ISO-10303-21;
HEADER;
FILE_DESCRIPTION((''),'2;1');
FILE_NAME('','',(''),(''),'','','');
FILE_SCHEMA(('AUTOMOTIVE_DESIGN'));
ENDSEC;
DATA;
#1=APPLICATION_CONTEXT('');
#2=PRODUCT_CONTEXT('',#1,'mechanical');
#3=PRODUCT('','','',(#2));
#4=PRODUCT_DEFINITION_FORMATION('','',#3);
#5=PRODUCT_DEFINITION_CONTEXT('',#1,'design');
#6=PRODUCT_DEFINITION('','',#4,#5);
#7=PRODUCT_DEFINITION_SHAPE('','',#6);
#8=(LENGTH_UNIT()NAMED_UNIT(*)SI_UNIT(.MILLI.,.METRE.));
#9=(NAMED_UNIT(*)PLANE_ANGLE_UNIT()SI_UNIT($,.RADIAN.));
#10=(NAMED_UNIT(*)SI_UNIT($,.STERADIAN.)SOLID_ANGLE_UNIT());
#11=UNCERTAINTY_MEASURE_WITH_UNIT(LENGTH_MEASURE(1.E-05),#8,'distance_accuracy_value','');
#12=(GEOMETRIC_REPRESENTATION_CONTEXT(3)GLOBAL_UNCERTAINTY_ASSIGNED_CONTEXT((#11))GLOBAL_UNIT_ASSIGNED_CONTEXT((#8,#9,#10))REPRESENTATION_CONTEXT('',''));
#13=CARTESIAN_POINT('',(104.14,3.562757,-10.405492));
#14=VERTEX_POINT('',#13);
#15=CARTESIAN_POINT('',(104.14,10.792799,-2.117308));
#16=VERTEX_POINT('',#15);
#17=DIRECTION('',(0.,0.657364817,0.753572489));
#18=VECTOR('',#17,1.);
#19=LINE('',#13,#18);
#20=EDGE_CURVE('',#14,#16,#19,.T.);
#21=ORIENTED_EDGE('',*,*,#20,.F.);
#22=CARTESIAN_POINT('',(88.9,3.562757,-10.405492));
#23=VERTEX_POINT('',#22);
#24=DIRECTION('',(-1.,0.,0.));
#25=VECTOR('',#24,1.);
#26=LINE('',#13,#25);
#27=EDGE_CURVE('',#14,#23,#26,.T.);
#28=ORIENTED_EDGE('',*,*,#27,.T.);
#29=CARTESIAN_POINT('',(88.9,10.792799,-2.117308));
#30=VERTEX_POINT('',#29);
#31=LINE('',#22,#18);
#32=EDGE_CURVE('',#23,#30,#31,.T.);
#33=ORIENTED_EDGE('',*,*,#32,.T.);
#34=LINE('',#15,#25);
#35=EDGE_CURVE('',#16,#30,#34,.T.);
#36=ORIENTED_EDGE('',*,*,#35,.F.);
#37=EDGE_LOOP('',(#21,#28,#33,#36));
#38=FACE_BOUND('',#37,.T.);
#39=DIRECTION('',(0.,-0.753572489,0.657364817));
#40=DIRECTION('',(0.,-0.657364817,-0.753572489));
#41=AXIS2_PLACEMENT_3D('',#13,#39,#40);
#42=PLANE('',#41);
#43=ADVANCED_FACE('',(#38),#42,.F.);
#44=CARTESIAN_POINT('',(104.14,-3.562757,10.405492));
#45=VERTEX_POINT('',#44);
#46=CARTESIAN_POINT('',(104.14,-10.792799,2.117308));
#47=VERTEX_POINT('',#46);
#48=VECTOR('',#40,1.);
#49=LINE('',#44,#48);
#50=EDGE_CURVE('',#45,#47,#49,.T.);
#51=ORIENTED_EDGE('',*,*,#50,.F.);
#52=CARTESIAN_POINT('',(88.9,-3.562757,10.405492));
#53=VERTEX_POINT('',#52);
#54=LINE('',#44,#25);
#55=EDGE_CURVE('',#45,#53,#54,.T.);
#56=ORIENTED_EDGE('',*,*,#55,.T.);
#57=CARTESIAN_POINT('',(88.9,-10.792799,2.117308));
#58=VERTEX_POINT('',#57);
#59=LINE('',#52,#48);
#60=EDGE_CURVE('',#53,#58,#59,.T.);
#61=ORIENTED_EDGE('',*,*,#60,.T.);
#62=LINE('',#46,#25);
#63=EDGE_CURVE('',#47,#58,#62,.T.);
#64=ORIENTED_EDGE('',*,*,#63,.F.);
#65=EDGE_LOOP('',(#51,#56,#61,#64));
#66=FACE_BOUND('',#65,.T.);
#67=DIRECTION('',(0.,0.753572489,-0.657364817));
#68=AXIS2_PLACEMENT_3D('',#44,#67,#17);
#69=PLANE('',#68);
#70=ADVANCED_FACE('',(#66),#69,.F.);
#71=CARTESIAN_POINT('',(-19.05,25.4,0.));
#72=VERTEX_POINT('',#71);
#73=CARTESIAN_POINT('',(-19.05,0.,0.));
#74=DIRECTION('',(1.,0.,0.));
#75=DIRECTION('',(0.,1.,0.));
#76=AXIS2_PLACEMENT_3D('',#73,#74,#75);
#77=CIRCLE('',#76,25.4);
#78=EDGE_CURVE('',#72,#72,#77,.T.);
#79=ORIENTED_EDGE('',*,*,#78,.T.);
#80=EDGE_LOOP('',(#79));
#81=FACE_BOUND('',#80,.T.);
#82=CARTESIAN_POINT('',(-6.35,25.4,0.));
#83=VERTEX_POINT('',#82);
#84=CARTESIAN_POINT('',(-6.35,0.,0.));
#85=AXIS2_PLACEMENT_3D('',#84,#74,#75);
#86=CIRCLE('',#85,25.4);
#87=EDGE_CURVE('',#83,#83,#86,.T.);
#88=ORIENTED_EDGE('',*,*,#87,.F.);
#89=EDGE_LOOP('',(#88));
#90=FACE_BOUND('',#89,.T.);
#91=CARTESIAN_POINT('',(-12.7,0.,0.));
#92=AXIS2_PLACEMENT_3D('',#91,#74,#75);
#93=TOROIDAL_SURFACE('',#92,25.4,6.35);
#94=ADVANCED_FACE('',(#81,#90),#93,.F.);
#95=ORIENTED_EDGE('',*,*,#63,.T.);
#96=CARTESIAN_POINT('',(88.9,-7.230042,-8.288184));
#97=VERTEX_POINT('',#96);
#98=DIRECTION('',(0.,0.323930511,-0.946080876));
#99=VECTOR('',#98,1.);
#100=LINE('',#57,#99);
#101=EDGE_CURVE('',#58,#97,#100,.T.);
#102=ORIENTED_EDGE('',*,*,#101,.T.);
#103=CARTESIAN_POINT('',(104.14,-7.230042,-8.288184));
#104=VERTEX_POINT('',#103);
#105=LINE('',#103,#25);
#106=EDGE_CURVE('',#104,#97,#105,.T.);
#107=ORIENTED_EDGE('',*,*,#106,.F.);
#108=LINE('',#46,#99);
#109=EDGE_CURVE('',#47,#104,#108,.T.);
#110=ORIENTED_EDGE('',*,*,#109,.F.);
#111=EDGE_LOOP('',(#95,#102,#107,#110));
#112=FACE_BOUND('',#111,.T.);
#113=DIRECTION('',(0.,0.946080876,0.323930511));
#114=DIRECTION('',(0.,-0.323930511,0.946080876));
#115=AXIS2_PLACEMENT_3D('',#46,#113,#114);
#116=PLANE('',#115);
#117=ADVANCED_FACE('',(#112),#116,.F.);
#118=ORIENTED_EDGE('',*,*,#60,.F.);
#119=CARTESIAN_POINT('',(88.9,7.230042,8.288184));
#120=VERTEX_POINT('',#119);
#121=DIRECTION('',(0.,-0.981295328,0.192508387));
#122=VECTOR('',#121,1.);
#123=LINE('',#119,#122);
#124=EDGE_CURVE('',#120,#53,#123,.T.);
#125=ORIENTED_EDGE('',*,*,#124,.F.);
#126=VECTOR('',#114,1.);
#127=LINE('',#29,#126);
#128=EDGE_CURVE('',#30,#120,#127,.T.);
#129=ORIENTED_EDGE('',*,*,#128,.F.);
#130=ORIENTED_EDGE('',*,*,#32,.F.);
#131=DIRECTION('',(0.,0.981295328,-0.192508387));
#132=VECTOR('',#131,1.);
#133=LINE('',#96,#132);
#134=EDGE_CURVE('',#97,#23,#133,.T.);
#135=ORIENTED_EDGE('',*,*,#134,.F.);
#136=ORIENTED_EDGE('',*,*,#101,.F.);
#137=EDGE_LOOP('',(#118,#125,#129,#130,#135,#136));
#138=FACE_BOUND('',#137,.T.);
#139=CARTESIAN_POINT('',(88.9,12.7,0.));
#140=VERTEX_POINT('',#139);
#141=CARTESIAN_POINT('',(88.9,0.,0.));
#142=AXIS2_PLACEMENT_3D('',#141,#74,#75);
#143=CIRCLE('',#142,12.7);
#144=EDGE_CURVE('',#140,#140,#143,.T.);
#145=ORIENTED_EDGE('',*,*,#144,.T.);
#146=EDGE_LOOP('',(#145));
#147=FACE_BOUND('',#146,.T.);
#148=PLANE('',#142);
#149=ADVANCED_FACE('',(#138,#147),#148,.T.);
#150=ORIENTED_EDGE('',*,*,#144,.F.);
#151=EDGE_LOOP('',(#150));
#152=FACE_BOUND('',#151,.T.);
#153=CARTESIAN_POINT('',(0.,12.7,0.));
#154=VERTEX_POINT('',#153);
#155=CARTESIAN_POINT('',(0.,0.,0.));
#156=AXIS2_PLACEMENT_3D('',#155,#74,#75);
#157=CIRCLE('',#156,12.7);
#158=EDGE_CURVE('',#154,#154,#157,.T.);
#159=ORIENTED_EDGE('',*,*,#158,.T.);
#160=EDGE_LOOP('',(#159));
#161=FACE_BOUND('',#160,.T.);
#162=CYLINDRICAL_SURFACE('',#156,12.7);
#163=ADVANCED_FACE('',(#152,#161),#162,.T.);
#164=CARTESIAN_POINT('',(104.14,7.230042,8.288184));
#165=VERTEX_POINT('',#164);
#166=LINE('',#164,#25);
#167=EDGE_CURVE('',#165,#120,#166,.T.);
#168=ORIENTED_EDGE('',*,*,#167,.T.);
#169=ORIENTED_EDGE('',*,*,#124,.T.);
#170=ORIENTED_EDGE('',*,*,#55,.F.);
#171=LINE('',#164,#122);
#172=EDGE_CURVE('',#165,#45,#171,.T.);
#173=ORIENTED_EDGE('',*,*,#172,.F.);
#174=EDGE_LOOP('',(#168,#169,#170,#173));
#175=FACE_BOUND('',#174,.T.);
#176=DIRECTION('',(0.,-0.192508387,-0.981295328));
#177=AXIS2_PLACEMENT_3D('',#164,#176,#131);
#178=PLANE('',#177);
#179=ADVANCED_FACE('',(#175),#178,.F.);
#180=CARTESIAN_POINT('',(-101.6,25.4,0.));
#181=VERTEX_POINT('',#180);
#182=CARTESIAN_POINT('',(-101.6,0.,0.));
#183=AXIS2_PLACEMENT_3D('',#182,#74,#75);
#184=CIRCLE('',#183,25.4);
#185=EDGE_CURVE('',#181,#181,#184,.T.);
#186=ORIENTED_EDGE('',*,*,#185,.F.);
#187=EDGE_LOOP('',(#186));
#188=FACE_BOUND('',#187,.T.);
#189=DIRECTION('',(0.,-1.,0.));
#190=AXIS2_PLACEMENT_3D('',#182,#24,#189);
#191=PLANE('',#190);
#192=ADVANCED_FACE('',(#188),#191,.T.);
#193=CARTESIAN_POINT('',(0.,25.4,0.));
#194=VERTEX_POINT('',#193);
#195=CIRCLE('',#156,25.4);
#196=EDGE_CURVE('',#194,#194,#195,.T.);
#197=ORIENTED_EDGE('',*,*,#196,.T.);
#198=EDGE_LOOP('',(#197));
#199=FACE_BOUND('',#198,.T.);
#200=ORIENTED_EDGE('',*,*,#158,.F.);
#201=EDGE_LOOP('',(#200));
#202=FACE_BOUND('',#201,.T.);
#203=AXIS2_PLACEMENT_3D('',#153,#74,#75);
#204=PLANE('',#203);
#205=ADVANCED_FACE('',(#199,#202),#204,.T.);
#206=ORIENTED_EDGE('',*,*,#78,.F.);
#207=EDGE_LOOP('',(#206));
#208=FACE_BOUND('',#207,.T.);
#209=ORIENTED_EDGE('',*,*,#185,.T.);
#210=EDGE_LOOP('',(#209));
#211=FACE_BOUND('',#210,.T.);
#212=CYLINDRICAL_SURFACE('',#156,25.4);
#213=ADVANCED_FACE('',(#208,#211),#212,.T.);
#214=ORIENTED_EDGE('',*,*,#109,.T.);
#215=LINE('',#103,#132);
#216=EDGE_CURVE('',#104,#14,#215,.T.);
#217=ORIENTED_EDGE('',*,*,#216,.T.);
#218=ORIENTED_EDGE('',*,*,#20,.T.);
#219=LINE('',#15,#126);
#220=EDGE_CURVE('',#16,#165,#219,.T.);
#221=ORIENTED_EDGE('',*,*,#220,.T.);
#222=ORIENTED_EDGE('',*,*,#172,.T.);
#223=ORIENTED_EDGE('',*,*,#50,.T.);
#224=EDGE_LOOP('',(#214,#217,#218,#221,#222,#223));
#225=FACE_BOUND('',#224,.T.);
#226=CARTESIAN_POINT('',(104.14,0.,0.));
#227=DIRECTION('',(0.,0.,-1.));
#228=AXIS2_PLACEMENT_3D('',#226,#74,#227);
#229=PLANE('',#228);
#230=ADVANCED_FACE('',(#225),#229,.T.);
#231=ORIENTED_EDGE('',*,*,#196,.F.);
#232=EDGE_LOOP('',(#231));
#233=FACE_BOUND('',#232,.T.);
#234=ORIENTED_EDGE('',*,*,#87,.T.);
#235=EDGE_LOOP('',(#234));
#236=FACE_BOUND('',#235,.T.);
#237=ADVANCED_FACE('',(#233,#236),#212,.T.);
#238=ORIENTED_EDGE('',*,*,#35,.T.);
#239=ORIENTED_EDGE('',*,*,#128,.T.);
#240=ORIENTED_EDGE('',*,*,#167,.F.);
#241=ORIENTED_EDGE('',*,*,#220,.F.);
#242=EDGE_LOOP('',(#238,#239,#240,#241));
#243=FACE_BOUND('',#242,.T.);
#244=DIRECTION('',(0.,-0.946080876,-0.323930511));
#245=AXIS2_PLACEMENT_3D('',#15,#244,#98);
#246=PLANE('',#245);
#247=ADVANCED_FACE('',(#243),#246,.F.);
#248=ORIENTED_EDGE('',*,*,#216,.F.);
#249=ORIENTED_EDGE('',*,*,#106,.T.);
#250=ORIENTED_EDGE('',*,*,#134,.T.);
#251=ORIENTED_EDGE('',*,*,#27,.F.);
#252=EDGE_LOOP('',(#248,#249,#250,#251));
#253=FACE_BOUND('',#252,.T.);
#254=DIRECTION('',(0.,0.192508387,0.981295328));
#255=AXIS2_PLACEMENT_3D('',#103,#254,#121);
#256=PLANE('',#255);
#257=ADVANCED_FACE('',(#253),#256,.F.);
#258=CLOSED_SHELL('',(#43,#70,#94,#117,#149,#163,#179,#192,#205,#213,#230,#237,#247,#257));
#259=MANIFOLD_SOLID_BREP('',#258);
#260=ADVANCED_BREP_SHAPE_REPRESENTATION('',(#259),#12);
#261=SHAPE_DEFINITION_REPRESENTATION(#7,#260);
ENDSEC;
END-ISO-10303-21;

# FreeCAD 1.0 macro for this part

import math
import FreeCAD as App
import Part
import Sketcher
from FreeCAD import Vector
Q = App.Units.Quantity

doc = App.newDocument("Part")
params = doc.addObject("Spreadsheet::Sheet", "Params")
for row, (alias, value) in enumerate([
    ("sketch1_height", "1 in"),
    ("sketch1_radius", "0.25 in"),
    ("sketch1_width", "7.5 in"),
    ("sketch1_width2", "3.5 in"),
    ("revolution_angle", "360 deg"),
    ("pad1_length", "0.6 in"),
], start=1):
    params.set(f"A{row}", alias)
    params.set(f"B{row}", "=" + value)
    params.setAlias(f"B{row}", alias)

body = doc.addObject("PartDesign::Body", "Body")

# Sketch on XY plane
sketch1 = body.newObject("Sketcher::SketchObject", "Sketch")
sketch1.AttachmentSupport = (doc.getObject("XY_Plane"), [""])
sketch1.MapMode = "FlatFace"
sketch1.addGeometry(Part.LineSegment(Vector(-102, 25, 0), Vector(-102, 0, 0)), False)
sketch1.addGeometry(Part.LineSegment(Vector(-102, 0, 0), Vector(89, 0, 0)), False)
sketch1.addGeometry(Part.LineSegment(Vector(89, 0, 0), Vector(89, 13, 0)), False)
sketch1.addGeometry(Part.LineSegment(Vector(89, 13, 0), Vector(0, 13, 0)), False)
sketch1.addGeometry(Part.LineSegment(Vector(0, 13, 0), Vector(0, 25, 0)), False)
sketch1.addGeometry(Part.LineSegment(Vector(0, 25, 0), Vector(-6, 25, 0)), False)
sketch1.addGeometry(Part.ArcOfCircle(Part.Circle(Vector(-13, 25, 0), Vector(0, 0, 1), 6), math.radians(180), math.radians(360)), False)
sketch1.addGeometry(Part.LineSegment(Vector(-19, 25, 0), Vector(-102, 25, 0)), False)
sketch1.addConstraint(Sketcher.Constraint("Coincident", 0, 2, 1, 1))
sketch1.addConstraint(Sketcher.Constraint("Coincident", 1, 2, 2, 1))
sketch1.addConstraint(Sketcher.Constraint("Coincident", 2, 2, 3, 1))
sketch1.addConstraint(Sketcher.Constraint("Coincident", 3, 2, 4, 1))
sketch1.addConstraint(Sketcher.Constraint("Coincident", 4, 2, 5, 1))
sketch1.addConstraint(Sketcher.Constraint("Coincident", 5, 2, 6, 2))
sketch1.addConstraint(Sketcher.Constraint("Coincident", 6, 1, 7, 1))
sketch1.addConstraint(Sketcher.Constraint("Coincident", 7, 2, 0, 1))
sketch1.addConstraint(Sketcher.Constraint("Vertical", 0))
sketch1.addConstraint(Sketcher.Constraint("Horizontal", 1))
sketch1.addConstraint(Sketcher.Constraint("Vertical", 2))
sketch1.addConstraint(Sketcher.Constraint("Horizontal", 3))
sketch1.addConstraint(Sketcher.Constraint("Vertical", 4))
sketch1.addConstraint(Sketcher.Constraint("Horizontal", 5))
sketch1.addConstraint(Sketcher.Constraint("Horizontal", 7))
sketch1.addConstraint(Sketcher.Constraint("PointOnObject", 0, 2, -1))
sketch1.addConstraint(Sketcher.Constraint("PointOnObject", 3, 2, -2))
sketch1.addConstraint(Sketcher.Constraint("Horizontal", 6, 3, 4, 2))
sketch1.addConstraint(Sketcher.Constraint("Horizontal", 5, 2, 6, 1))
sketch1.addConstraint(Sketcher.Constraint("Equal", 2, 4))
sketch1.addConstraint(Sketcher.Constraint("DistanceY", 0, 2, 0, 1, Q("1 in")))
sketch1.addConstraint(Sketcher.Constraint("Radius", 6, Q("0.25 in")))
sketch1.addConstraint(Sketcher.Constraint("DistanceX", 1, 1, 1, 2, Q("7.5 in")))
sketch1.addConstraint(Sketcher.Constraint("DistanceX", 3, 2, 3, 1, Q("3.5 in")))
sketch1.addConstraint(Sketcher.Constraint("DistanceX", 6, 3, 1, 2, Q("4 in")))
sketch1.setExpression("Constraints[20]", "Params.sketch1_height")
sketch1.setExpression("Constraints[21]", "Params.sketch1_radius")
sketch1.setExpression("Constraints[22]", "Params.sketch1_width")
sketch1.setExpression("Constraints[23]", "Params.sketch1_width2")
revolution = body.newObject("PartDesign::Revolution", "Revolution")
revolution.Profile = sketch1
revolution.ReferenceAxis = (sketch1, ["H_Axis"])
revolution.setExpression("Angle", "Params.revolution_angle")

# Sketch on YZ plane
sketch2 = body.newObject("Sketcher::SketchObject", "Sketch001")
sketch2.AttachmentSupport = (doc.getObject("YZ_Plane"), [""])
sketch2.MapMode = "FlatFace"
sketch2.AttachmentOffset = App.Placement(Vector(0, 0, 3.5 * 25.4), App.Rotation())
sketch2.addGeometry(Part.LineSegment(Vector(-7, -8, 0), Vector(4, -10, 0)), False)
sketch2.addGeometry(Part.LineSegment(Vector(4, -10, 0), Vector(11, -2, 0)), False)
sketch2.addGeometry(Part.LineSegment(Vector(11, -2, 0), Vector(7, 8, 0)), False)
sketch2.addGeometry(Part.LineSegment(Vector(7, 8, 0), Vector(-4, 10, 0)), False)
sketch2.addGeometry(Part.LineSegment(Vector(-4, 10, 0), Vector(-11, 2, 0)), False)
sketch2.addGeometry(Part.LineSegment(Vector(-11, 2, 0), Vector(-7, -8, 0)), False)
sketch2.addConstraint(Sketcher.Constraint("Coincident", 0, 2, 1, 1))
sketch2.addConstraint(Sketcher.Constraint("Coincident", 1, 2, 2, 1))
sketch2.addConstraint(Sketcher.Constraint("Coincident", 2, 2, 3, 1))
sketch2.addConstraint(Sketcher.Constraint("Coincident", 3, 2, 4, 1))
sketch2.addConstraint(Sketcher.Constraint("Coincident", 4, 2, 5, 1))
sketch2.addConstraint(Sketcher.Constraint("Coincident", 5, 2, 0, 1))
sketch2.addConstraint(Sketcher.Constraint("Symmetric", 0, 2, 3, 2, -1, 1))
sketch2.addConstraint(Sketcher.Constraint("Symmetric", 1, 2, 4, 2, -1, 1))
sketch2.addConstraint(Sketcher.Constraint("Symmetric", 2, 2, 5, 2, -1, 1))
sketch2.addConstraint(Sketcher.Constraint("Equal", 0, 1))
sketch2.addConstraint(Sketcher.Constraint("Equal", 1, 2))
sketch2.addConstraint(Sketcher.Constraint("DistanceX", -1, 1, 1, 2, 10.792799))
sketch2.addConstraint(Sketcher.Constraint("DistanceX", 3, 2, 2, 2, 10.792799))
sketch2.addConstraint(Sketcher.Constraint("DistanceY", 1, 2, 3, 2, 12.5228))
sketch2.addConstraint(Sketcher.Constraint("DistanceY", 0, 2, -1, 1, 10.405492))
pad1 = body.newObject("PartDesign::Pad", "Pad")
pad1.Profile = sketch2
pad1.setExpression("Length", "Params.pad1_length")

doc.recompute()
